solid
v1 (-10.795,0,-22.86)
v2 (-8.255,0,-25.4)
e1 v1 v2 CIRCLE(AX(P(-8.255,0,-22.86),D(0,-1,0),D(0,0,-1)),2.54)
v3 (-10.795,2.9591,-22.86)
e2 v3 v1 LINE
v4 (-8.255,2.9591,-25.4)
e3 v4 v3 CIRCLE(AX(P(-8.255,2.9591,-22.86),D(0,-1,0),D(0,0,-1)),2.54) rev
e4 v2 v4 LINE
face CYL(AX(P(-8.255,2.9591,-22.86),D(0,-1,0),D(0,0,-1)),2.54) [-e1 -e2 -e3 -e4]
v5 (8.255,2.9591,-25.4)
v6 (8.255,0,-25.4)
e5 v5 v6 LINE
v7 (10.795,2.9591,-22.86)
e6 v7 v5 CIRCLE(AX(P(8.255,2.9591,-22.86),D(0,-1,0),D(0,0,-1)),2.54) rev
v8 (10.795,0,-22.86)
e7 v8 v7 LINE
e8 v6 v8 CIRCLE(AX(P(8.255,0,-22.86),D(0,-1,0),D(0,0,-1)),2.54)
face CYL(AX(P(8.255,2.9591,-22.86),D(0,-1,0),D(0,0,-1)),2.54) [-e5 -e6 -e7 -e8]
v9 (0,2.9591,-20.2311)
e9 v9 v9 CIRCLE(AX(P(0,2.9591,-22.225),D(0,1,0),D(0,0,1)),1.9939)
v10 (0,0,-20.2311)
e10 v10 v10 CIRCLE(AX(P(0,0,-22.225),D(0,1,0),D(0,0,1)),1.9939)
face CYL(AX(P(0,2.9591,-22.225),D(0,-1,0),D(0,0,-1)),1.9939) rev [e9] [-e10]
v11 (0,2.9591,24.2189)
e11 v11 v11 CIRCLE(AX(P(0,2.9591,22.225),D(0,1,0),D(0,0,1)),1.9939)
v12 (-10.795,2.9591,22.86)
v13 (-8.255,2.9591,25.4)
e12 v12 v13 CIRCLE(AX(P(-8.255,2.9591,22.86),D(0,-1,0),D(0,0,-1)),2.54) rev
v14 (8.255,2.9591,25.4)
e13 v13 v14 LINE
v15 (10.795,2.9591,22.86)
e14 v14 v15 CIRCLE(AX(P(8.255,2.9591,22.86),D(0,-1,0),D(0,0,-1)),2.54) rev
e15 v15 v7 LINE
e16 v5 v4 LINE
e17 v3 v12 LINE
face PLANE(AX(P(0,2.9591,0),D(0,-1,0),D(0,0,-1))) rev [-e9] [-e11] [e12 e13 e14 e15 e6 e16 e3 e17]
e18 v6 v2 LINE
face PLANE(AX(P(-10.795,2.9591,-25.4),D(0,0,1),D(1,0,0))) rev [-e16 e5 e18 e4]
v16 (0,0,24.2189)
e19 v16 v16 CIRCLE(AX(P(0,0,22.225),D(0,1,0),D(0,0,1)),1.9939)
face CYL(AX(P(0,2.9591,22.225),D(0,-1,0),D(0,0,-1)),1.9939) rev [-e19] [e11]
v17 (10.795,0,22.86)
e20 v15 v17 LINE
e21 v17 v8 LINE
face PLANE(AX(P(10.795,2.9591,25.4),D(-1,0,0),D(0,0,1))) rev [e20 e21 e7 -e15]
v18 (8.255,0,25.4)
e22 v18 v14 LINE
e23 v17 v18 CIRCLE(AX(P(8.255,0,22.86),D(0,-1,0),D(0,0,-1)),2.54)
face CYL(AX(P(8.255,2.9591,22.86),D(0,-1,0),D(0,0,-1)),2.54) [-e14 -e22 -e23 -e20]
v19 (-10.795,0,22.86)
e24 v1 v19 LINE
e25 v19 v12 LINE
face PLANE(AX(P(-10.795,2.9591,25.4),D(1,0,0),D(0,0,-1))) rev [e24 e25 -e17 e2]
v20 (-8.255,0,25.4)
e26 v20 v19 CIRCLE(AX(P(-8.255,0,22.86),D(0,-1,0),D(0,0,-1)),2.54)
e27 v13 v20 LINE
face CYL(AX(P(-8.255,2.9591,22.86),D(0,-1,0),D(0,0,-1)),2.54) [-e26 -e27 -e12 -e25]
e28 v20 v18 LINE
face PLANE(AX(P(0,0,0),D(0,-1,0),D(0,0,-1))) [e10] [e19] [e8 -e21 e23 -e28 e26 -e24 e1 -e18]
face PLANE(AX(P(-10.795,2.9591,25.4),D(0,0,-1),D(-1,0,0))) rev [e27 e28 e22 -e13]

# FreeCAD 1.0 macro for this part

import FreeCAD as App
import Part
import Sketcher
Q = App.Units.Quantity


def edges_at(feature, points):
    """Names of the edges that pass closest to the given points."""
    edges = feature.Shape.Edges
    near = lambda p: min(range(len(edges)), key=lambda i: edges[i].distToShape(Part.Vertex(*p))[0])
    return sorted({f"Edge{near(p) + 1}" for p in points})


def add_polygon(sketch, points):
    """Adds a closed chain of lines whose ends are joined by coincident constraints."""
    first, n = sketch.GeometryCount, len(points)
    for a, b in zip(points, points[1:] + points[:1]):
        sketch.addGeometry(Part.LineSegment(App.Vector(*a, 0), App.Vector(*b, 0)), False)
    for i in range(n):
        sketch.addConstraint(Sketcher.Constraint("Coincident", first + i, 2, first + (i + 1) % n, 1))

doc = App.newDocument("Part")
body = doc.addObject("PartDesign::Body", "Body")

sketch1 = body.newObject("Sketcher::SketchObject", "Sketch")
sketch1.AttachmentSupport = (doc.getObject("XZ_Plane"), [""])
sketch1.MapMode = "FlatFace"
add_polygon(sketch1, [(-10.795, -25.4), (-10.795, 25.4), (10.795, 25.4), (10.795, -25.4)])
sketch1.addGeometry(Part.Circle(App.Vector(0, 22.225, 0), App.Vector(0, 0, 1), 1.9939), False)
sketch1.addGeometry(Part.Circle(App.Vector(0, -22.225, 0), App.Vector(0, 0, 1), 1.9939), False)
sketch1.addConstraint([
    Sketcher.Constraint("Vertical", 0),
    Sketcher.Constraint("Horizontal", 1),
    Sketcher.Constraint("Vertical", 2),
    Sketcher.Constraint("Horizontal", 3),
    Sketcher.Constraint("Equal", 4, 5),
    Sketcher.Constraint("Symmetric", 4, 3, 5, 3, -1, 1),
    Sketcher.Constraint("Symmetric", 0, 2, 2, 2, -1, 1),
    Sketcher.Constraint("PointOnObject", 4, 3, -2),
    Sketcher.Constraint("DistanceY", 0, 1, 0, 2, Q("2 in")),
    Sketcher.Constraint("Diameter", 4, Q("0.157 in")),
    Sketcher.Constraint("DistanceX", 1, 1, 1, 2, Q("0.85 in")),
    Sketcher.Constraint("DistanceY", 5, 3, 4, 3, Q("1.75 in")),
])
pad1 = body.newObject("PartDesign::Pad", "Pad")
pad1.Profile = sketch1
pad1.Length = Q("0.1165 in")
pad1.Reversed = True
doc.recompute()

fillet = body.newObject("PartDesign::Fillet", "Fillet")
fillet.Base = (pad1, edges_at(pad1, [
    (10.795, 1.48, 25.4),
    (-10.795, 1.48, 25.4),
    (-10.795, 1.48, -25.4),
    (10.795, 1.48, -25.4),
]))
fillet.Radius = Q("0.1 in")

doc.recompute()
